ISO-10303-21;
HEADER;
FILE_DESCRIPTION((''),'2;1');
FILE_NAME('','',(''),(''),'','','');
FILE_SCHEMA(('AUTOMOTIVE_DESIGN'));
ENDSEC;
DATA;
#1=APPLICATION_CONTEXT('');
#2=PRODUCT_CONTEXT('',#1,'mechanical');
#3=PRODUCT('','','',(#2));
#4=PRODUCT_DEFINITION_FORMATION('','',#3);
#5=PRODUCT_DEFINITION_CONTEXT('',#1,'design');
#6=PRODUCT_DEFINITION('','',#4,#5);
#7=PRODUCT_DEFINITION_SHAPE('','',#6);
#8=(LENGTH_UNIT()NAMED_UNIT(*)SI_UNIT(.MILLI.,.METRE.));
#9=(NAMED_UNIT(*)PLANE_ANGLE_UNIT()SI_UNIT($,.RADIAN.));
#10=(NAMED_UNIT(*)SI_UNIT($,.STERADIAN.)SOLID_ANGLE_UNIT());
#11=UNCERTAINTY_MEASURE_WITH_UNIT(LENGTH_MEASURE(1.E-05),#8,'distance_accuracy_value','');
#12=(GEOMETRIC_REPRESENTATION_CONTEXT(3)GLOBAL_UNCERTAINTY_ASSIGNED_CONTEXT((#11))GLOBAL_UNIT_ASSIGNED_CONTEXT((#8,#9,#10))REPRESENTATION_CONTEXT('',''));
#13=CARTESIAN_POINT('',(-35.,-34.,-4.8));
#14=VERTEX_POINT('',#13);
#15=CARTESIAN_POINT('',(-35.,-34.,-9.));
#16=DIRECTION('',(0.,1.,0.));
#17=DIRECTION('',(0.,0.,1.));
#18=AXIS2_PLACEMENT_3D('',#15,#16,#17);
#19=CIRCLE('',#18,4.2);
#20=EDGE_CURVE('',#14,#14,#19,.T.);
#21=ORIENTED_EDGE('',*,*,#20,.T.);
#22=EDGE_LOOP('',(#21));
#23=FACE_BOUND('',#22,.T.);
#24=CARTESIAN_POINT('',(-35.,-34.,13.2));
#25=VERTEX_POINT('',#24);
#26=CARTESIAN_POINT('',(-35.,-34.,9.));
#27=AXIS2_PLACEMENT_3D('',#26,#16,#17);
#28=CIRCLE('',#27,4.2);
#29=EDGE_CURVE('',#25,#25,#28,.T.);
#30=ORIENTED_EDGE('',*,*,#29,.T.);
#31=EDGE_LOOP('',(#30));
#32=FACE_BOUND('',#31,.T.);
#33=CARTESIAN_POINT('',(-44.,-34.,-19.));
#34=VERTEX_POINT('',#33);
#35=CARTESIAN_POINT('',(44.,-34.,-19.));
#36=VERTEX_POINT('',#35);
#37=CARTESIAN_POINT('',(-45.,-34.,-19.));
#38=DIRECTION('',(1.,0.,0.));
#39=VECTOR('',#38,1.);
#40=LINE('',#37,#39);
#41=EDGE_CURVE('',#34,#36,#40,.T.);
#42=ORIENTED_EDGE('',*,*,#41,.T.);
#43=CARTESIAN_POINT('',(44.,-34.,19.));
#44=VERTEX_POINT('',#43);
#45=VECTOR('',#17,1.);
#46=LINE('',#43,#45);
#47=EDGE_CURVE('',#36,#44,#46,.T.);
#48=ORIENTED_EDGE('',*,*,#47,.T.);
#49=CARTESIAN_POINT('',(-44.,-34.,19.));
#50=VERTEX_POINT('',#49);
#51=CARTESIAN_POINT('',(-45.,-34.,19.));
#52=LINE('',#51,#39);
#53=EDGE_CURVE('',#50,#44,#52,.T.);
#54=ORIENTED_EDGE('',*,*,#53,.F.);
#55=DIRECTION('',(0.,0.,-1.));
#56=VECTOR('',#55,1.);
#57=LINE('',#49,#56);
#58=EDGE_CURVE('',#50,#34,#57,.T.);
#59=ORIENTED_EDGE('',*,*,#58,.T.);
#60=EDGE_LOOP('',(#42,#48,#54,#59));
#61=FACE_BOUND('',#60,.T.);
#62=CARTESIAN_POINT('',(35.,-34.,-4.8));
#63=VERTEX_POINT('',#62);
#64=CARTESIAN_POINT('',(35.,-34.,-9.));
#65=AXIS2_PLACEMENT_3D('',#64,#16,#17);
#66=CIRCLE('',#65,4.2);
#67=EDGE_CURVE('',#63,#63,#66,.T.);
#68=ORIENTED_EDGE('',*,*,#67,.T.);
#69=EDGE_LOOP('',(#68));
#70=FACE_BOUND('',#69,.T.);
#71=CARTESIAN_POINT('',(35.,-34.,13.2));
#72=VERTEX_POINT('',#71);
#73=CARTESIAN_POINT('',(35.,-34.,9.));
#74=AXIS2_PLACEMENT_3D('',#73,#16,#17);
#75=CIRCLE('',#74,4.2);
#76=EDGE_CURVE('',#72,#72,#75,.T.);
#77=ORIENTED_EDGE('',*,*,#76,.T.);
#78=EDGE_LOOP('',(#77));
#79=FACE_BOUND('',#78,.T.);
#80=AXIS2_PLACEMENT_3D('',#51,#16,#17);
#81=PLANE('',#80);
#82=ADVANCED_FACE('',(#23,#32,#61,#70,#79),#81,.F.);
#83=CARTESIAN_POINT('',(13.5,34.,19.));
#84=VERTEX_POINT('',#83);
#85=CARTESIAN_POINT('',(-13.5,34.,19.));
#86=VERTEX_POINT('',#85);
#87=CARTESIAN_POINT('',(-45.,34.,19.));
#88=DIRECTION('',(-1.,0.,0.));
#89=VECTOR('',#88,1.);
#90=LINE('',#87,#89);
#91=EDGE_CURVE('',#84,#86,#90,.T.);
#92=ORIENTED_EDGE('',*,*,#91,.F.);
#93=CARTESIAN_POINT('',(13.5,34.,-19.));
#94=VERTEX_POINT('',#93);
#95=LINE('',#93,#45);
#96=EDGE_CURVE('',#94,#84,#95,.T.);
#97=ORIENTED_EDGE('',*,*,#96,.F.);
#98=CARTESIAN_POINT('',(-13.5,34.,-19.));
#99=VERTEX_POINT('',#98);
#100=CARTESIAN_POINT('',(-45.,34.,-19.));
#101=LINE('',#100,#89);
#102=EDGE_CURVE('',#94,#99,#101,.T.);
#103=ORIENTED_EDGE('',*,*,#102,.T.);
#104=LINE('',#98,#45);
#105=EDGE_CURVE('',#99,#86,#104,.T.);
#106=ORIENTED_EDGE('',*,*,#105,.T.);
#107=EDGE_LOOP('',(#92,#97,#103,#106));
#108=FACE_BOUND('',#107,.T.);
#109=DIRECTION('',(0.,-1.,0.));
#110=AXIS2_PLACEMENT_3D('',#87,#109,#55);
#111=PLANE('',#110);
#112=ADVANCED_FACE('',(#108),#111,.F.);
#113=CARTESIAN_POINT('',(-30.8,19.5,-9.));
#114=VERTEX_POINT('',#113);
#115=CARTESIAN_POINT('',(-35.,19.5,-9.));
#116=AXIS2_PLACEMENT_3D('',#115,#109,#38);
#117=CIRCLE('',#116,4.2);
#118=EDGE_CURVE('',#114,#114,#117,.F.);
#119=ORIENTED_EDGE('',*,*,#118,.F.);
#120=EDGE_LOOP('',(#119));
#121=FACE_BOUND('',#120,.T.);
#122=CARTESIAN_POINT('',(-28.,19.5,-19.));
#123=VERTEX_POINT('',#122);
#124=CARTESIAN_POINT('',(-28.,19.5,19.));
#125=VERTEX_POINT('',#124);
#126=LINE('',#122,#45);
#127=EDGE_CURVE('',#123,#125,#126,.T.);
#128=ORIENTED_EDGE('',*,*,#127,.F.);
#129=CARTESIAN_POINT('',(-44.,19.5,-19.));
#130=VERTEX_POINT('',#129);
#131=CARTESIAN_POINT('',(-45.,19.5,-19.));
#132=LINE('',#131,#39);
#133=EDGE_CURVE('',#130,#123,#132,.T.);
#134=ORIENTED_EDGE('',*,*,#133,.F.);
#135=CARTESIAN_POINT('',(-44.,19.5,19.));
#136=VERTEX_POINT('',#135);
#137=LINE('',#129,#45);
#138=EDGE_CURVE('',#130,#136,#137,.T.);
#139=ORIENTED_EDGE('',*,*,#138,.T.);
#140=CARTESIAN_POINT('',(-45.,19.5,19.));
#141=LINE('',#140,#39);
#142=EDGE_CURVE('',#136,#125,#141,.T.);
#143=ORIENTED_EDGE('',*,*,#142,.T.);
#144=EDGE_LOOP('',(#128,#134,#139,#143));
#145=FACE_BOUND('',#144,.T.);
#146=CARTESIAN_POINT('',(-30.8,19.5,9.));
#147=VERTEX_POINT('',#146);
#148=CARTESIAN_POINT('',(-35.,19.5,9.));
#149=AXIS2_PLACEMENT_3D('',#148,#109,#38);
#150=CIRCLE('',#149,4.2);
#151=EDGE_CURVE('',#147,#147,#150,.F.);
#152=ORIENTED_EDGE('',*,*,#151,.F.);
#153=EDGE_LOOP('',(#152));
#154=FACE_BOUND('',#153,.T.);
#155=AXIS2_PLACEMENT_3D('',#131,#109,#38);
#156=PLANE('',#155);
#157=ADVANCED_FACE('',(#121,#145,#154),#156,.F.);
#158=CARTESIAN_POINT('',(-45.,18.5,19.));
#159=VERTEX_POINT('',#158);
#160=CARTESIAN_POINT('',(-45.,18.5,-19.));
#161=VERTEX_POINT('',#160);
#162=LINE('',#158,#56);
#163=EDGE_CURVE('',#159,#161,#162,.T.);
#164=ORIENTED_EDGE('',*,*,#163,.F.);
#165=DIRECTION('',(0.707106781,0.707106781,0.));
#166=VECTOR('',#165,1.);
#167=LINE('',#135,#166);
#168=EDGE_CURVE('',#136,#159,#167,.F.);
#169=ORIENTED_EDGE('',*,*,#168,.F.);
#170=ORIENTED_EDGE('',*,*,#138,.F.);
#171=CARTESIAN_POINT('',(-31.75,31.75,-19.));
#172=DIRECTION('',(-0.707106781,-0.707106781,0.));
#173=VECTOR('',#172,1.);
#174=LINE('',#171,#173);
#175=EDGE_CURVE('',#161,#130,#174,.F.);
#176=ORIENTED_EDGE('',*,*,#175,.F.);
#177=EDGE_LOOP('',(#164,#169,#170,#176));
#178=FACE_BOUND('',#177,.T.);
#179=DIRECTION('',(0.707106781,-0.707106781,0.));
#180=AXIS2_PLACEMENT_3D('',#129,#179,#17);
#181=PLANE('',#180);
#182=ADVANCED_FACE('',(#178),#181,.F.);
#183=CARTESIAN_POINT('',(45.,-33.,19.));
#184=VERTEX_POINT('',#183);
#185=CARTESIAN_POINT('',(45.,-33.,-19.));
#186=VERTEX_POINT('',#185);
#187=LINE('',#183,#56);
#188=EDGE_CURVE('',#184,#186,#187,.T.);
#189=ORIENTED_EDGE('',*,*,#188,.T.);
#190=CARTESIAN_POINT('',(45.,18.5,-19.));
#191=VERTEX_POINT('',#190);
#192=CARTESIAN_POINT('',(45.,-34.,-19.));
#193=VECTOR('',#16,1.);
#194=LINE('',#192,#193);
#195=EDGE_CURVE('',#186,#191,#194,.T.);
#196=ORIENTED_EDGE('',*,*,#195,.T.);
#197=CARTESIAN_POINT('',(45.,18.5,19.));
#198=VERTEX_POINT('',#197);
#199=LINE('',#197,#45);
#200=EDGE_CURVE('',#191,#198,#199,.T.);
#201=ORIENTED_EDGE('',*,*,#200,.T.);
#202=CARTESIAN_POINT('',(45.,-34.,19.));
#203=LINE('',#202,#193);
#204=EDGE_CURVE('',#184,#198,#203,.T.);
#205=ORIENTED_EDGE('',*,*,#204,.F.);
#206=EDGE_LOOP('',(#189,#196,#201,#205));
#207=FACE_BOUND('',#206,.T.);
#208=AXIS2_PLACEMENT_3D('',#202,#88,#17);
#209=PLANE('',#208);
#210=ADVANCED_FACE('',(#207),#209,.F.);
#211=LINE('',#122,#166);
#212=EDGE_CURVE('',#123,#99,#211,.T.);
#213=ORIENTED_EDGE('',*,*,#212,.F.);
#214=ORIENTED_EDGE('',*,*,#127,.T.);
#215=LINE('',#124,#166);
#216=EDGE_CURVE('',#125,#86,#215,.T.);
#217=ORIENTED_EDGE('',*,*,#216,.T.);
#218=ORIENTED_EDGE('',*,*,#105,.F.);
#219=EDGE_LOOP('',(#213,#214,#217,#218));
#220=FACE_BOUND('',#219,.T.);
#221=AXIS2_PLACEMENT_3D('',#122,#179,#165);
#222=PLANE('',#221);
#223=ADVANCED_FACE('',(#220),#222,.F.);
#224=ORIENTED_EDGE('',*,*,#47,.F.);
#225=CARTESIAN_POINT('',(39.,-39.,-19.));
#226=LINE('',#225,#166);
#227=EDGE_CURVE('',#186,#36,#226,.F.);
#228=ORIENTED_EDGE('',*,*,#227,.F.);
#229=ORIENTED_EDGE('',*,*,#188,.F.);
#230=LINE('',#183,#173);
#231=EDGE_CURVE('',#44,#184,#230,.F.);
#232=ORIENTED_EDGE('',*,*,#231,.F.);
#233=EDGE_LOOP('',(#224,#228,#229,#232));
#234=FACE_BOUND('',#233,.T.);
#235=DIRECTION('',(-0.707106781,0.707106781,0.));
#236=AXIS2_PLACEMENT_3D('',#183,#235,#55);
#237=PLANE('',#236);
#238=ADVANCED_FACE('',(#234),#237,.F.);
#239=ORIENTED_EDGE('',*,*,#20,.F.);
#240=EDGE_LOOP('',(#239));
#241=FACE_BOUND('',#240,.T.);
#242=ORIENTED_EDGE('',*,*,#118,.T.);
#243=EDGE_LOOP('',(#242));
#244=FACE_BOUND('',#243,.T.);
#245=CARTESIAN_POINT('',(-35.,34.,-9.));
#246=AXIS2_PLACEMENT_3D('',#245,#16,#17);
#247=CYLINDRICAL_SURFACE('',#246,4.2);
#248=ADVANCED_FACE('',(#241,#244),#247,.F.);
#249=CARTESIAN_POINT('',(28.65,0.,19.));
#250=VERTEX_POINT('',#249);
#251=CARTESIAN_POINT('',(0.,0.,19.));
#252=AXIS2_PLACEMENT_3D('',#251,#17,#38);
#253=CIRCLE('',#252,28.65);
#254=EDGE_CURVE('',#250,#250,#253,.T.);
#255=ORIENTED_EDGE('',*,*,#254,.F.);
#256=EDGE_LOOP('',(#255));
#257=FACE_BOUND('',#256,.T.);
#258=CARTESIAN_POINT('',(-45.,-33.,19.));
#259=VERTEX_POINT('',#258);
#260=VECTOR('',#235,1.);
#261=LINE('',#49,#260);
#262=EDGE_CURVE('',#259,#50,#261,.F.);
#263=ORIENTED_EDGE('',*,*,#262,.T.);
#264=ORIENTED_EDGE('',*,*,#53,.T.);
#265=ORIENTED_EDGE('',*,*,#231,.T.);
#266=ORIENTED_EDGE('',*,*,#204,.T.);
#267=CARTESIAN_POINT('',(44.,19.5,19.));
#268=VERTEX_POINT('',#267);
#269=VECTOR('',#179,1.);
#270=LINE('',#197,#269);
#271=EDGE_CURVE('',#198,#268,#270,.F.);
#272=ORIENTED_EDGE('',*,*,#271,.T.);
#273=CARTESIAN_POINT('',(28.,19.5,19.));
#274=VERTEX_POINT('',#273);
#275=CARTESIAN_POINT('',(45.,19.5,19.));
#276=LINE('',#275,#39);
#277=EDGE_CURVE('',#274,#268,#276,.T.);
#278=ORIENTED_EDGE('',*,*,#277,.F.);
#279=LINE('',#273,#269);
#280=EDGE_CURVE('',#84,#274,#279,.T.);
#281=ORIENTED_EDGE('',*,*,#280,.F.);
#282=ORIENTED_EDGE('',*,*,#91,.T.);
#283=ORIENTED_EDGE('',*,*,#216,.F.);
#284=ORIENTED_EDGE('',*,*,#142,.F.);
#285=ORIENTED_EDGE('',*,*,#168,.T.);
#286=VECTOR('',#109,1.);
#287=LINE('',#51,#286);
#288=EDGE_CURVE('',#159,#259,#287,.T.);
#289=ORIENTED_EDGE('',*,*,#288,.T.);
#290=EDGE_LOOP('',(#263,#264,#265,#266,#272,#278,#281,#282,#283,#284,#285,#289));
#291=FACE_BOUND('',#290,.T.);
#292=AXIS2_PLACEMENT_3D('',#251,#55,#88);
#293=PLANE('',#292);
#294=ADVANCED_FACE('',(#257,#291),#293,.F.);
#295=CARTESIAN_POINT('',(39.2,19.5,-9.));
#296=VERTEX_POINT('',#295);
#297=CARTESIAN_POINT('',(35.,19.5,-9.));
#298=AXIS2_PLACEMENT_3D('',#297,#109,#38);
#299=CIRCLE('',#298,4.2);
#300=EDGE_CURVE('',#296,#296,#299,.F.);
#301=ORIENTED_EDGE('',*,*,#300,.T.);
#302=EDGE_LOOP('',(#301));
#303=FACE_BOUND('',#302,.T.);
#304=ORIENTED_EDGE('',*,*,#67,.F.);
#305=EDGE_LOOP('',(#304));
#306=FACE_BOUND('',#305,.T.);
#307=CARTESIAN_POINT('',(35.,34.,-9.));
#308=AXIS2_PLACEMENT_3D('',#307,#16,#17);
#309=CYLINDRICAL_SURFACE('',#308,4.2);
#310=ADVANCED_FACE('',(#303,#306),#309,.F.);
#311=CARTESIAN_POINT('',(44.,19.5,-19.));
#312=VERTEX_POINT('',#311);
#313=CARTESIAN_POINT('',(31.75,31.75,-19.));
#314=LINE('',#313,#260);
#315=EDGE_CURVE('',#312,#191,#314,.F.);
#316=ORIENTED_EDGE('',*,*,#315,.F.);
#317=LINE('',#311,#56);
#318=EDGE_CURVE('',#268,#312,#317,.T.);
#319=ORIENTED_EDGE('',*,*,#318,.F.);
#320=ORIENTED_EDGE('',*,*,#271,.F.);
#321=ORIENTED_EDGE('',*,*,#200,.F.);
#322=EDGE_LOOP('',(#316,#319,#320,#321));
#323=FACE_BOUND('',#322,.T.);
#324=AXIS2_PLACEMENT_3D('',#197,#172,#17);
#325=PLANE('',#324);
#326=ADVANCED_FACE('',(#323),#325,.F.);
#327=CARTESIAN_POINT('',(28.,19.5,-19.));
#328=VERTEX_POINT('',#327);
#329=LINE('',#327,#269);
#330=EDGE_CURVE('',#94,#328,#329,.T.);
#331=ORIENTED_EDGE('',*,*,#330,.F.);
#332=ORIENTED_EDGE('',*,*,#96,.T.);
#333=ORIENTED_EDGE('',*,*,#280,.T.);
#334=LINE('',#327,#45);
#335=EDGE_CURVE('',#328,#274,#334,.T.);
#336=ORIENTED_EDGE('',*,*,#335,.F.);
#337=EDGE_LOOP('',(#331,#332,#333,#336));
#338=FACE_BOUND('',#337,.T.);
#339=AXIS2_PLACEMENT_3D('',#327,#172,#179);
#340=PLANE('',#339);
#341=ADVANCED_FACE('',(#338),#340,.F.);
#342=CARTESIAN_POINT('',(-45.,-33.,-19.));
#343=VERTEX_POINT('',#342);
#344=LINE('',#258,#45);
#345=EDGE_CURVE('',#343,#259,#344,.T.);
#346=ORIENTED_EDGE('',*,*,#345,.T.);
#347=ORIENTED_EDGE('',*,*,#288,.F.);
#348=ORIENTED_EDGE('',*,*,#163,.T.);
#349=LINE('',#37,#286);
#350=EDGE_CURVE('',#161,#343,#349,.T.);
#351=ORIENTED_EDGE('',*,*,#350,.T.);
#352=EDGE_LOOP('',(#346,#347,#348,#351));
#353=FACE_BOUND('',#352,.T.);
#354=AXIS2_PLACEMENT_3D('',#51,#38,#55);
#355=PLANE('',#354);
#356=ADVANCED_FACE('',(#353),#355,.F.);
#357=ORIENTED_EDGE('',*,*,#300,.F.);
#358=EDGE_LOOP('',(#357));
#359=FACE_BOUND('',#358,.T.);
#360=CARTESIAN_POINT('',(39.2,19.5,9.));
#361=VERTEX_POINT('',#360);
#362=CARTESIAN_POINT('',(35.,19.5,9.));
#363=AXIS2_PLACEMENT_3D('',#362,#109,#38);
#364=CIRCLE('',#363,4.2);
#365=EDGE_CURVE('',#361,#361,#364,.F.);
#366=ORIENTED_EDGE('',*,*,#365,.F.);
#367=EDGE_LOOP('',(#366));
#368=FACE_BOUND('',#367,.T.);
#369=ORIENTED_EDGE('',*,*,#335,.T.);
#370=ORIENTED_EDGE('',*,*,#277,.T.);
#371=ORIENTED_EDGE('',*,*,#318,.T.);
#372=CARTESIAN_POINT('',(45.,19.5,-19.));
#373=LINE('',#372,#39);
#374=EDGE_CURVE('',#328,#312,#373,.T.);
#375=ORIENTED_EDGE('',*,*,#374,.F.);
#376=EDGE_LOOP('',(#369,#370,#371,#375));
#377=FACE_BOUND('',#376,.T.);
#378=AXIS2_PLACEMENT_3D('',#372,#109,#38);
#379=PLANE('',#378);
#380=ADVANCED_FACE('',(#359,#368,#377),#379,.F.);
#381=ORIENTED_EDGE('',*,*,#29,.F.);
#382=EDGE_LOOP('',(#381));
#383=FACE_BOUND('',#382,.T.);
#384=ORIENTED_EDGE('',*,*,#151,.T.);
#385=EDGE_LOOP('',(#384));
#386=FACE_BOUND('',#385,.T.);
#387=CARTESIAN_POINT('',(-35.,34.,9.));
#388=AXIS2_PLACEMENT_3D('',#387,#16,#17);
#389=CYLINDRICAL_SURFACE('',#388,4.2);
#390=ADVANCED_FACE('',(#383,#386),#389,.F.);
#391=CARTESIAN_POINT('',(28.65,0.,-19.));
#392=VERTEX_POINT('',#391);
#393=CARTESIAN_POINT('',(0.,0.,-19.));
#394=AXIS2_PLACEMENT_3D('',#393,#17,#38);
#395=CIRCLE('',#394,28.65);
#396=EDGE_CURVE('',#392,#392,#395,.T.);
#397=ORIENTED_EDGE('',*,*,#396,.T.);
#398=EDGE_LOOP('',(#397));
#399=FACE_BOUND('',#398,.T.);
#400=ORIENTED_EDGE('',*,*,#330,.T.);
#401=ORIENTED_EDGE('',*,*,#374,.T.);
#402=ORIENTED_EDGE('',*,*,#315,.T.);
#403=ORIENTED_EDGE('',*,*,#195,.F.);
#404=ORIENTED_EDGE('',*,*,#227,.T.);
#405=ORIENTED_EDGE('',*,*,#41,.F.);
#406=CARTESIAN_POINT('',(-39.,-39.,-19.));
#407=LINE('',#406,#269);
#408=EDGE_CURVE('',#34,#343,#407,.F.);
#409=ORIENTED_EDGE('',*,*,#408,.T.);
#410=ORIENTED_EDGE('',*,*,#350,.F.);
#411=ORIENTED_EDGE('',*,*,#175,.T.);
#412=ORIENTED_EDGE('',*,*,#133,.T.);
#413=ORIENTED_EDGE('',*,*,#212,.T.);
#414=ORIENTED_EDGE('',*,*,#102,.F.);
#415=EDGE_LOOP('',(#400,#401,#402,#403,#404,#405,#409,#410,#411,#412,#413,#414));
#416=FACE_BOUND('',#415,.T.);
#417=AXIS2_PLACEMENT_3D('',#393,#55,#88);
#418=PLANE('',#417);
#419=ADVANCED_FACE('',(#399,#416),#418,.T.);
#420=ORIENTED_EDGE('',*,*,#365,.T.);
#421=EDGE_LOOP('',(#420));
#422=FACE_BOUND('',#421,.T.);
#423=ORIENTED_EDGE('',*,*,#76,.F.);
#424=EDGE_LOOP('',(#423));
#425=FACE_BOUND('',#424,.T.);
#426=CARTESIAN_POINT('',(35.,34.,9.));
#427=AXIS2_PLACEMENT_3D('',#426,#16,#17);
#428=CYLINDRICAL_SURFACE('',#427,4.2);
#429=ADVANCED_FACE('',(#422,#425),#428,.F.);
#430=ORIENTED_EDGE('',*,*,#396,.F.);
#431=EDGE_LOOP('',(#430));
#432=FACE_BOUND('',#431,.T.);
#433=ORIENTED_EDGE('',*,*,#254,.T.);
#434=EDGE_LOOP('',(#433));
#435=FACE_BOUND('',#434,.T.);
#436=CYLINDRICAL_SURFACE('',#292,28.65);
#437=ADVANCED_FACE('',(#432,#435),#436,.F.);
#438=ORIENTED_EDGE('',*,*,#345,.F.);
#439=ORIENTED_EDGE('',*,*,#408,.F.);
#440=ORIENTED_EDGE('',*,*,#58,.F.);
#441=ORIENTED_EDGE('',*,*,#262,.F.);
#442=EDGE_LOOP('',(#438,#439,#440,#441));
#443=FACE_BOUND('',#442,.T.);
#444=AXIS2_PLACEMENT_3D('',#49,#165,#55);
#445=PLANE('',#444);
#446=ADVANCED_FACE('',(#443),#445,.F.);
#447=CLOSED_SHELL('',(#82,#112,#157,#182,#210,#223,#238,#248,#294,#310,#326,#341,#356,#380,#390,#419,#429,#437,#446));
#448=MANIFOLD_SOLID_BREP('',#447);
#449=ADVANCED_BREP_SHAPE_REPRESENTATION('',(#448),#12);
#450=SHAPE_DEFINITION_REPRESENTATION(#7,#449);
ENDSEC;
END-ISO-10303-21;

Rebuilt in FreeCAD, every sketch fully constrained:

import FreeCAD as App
import Part
import Sketcher
Q = App.Units.Quantity


def edges_at(feature, points):
    """Names of the edges that pass closest to the given points."""
    edges = feature.Shape.Edges
    near = lambda p: min(range(len(edges)), key=lambda i: edges[i].distToShape(Part.Vertex(*p))[0])
    return sorted({f"Edge{near(p) + 1}" for p in points})


def add_polygon(sketch, points):
    """Adds a closed chain of lines whose ends are joined by coincident constraints."""
    first, n = sketch.GeometryCount, len(points)
    for a, b in zip(points, points[1:] + points[:1]):
        sketch.addGeometry(Part.LineSegment(App.Vector(*a, 0), App.Vector(*b, 0)), False)
    for i in range(n):
        sketch.addConstraint(Sketcher.Constraint("Coincident", first + i, 2, first + (i + 1) % n, 1))

doc = App.newDocument("Part")
body = doc.addObject("PartDesign::Body", "Body")

# Sketch on XY plane
sketch1 = body.newObject("Sketcher::SketchObject", "Sketch")
sketch1.AttachmentSupport = (doc.getObject("XY_Plane"), [""])
sketch1.MapMode = "FlatFace"
add_polygon(sketch1, [(-45, 34), (-45, -34), (45, -34), (45, 34)])  # lines 0-3
sketch1.addGeometry(Part.Circle(App.Vector(0, 0, 0), App.Vector(0, 0, 1), 29), False)  # 4
sketch1.addConstraint(Sketcher.Constraint("Vertical", 0))
sketch1.addConstraint(Sketcher.Constraint("Horizontal", 1))
sketch1.addConstraint(Sketcher.Constraint("Vertical", 2))
sketch1.addConstraint(Sketcher.Constraint("Horizontal", 3))
sketch1.addConstraint(Sketcher.Constraint("Coincident", 4, 3, -1, 1))
sketch1.addConstraint(Sketcher.Constraint("Symmetric", 0, 2, 2, 2, -1, 1))
sketch1.addConstraint(Sketcher.Constraint("Diameter", 4, Q("57.3 mm")))
sketch1.addConstraint(Sketcher.Constraint("DistanceX", 1, 1, 1, 2, Q("90 mm")))
sketch1.addConstraint(Sketcher.Constraint("DistanceY", 0, 2, 0, 1, Q("68 mm")))
pad1 = body.newObject("PartDesign::Pad", "Pad")
pad1.Profile = sketch1
pad1.Length = 38
pad1.Midplane = True

# Sketch on XZ plane
sketch2 = body.newObject("Sketcher::SketchObject", "Sketch001")
sketch2.AttachmentSupport = (doc.getObject("XZ_Plane"), [""])
sketch2.MapMode = "FlatFace"
sketch2.AttachmentOffset = App.Placement(App.Vector(0, 0, -34), App.Rotation())
sketch2.addGeometry(Part.Circle(App.Vector(-35, -9, 0), App.Vector(0, 0, 1), 4.2), False)
sketch2.addGeometry(Part.Circle(App.Vector(-35, 9, 0), App.Vector(0, 0, 1), 4.2), False)
sketch2.addGeometry(Part.Circle(App.Vector(35, 9, 0), App.Vector(0, 0, 1), 4.2), False)
sketch2.addGeometry(Part.Circle(App.Vector(35, -9, 0), App.Vector(0, 0, 1), 4.2), False)
sketch2.addConstraint(Sketcher.Constraint("Equal", 0, 1))
sketch2.addConstraint(Sketcher.Constraint("Equal", 1, 2))
sketch2.addConstraint(Sketcher.Constraint("Equal", 2, 3))
sketch2.addConstraint(Sketcher.Constraint("Symmetric", 0, 3, 2, 3, -1, 1))
sketch2.addConstraint(Sketcher.Constraint("Symmetric", 1, 3, 3, 3, -1, 1))
sketch2.addConstraint(Sketcher.Constraint("Symmetric", 1, 3, 2, 3, -2))
sketch2.addConstraint(Sketcher.Constraint("Diameter", 0, Q("8.4 mm")))
sketch2.addConstraint(Sketcher.Constraint("DistanceX", 0, 3, -1, 1, Q("35 mm")))
sketch2.addConstraint(Sketcher.Constraint("DistanceY", 0, 3, -1, 1, Q("9 mm")))
doc.recompute()
hole = body.newObject("PartDesign::Hole", "Hole")
hole.Profile = sketch2
hole.ThreadType = "None"
hole.Diameter = 8.4
hole.DepthType = "ThroughAll"
hole.Reversed = True

# Sketch on XY plane
sketch3 = body.newObject("Sketcher::SketchObject", "Sketch002")
sketch3.AttachmentSupport = (doc.getObject("XY_Plane"), [""])
sketch3.MapMode = "FlatFace"
sketch3.AttachmentOffset = App.Placement(App.Vector(0, 0, 19), App.Rotation())
add_polygon(sketch3, [(-45, 19.5), (-28, 19.5), (-13.5, 34), (-45, 34)])  # lines 0-3
add_polygon(sketch3, [(28, 19.5), (45, 19.5), (45, 34), (13.5, 34)])  # lines 4-7
sketch3.addConstraint(Sketcher.Constraint("Horizontal", 0))
sketch3.addConstraint(Sketcher.Constraint("Horizontal", 2))
sketch3.addConstraint(Sketcher.Constraint("Vertical", 3))
sketch3.addConstraint(Sketcher.Constraint("Horizontal", 4))
sketch3.addConstraint(Sketcher.Constraint("Vertical", 5))
sketch3.addConstraint(Sketcher.Constraint("Horizontal", 6))
sketch3.addConstraint(Sketcher.Constraint("Symmetric", 3, 2, 4, 2, -2))
sketch3.addConstraint(Sketcher.Constraint("Symmetric", 1, 2, 6, 2, -2))
sketch3.addConstraint(Sketcher.Constraint("Perpendicular", 1, 7))
sketch3.addConstraint(Sketcher.Constraint("Equal", 0, 4))
sketch3.addConstraint(Sketcher.Constraint("DistanceX", 0, 1, 0, 2, Q("17 mm")))
sketch3.addConstraint(Sketcher.Constraint("DistanceX", 2, 2, 2, 1, Q("31.5 mm")))
sketch3.addConstraint(Sketcher.Constraint("DistanceX", 0, 2, -1, 1, Q("28 mm")))
sketch3.addConstraint(Sketcher.Constraint("DistanceY", -1, 1, 1, 2, Q("34 mm")))
pocket1 = body.newObject("PartDesign::Pocket", "Pocket")
pocket1.Profile = sketch3
pocket1.Type = "ThroughAll"
doc.recompute()

chamfer = body.newObject("PartDesign::Chamfer", "Chamfer")
chamfer.Base = (pocket1, edges_at(pocket1, [
    (-45, 19.5, 0),
    (45, 19.5, 0),
    (45, -34, 0),
    (-45, -34, 0),
]))
chamfer.Size = 1

doc.recompute()
